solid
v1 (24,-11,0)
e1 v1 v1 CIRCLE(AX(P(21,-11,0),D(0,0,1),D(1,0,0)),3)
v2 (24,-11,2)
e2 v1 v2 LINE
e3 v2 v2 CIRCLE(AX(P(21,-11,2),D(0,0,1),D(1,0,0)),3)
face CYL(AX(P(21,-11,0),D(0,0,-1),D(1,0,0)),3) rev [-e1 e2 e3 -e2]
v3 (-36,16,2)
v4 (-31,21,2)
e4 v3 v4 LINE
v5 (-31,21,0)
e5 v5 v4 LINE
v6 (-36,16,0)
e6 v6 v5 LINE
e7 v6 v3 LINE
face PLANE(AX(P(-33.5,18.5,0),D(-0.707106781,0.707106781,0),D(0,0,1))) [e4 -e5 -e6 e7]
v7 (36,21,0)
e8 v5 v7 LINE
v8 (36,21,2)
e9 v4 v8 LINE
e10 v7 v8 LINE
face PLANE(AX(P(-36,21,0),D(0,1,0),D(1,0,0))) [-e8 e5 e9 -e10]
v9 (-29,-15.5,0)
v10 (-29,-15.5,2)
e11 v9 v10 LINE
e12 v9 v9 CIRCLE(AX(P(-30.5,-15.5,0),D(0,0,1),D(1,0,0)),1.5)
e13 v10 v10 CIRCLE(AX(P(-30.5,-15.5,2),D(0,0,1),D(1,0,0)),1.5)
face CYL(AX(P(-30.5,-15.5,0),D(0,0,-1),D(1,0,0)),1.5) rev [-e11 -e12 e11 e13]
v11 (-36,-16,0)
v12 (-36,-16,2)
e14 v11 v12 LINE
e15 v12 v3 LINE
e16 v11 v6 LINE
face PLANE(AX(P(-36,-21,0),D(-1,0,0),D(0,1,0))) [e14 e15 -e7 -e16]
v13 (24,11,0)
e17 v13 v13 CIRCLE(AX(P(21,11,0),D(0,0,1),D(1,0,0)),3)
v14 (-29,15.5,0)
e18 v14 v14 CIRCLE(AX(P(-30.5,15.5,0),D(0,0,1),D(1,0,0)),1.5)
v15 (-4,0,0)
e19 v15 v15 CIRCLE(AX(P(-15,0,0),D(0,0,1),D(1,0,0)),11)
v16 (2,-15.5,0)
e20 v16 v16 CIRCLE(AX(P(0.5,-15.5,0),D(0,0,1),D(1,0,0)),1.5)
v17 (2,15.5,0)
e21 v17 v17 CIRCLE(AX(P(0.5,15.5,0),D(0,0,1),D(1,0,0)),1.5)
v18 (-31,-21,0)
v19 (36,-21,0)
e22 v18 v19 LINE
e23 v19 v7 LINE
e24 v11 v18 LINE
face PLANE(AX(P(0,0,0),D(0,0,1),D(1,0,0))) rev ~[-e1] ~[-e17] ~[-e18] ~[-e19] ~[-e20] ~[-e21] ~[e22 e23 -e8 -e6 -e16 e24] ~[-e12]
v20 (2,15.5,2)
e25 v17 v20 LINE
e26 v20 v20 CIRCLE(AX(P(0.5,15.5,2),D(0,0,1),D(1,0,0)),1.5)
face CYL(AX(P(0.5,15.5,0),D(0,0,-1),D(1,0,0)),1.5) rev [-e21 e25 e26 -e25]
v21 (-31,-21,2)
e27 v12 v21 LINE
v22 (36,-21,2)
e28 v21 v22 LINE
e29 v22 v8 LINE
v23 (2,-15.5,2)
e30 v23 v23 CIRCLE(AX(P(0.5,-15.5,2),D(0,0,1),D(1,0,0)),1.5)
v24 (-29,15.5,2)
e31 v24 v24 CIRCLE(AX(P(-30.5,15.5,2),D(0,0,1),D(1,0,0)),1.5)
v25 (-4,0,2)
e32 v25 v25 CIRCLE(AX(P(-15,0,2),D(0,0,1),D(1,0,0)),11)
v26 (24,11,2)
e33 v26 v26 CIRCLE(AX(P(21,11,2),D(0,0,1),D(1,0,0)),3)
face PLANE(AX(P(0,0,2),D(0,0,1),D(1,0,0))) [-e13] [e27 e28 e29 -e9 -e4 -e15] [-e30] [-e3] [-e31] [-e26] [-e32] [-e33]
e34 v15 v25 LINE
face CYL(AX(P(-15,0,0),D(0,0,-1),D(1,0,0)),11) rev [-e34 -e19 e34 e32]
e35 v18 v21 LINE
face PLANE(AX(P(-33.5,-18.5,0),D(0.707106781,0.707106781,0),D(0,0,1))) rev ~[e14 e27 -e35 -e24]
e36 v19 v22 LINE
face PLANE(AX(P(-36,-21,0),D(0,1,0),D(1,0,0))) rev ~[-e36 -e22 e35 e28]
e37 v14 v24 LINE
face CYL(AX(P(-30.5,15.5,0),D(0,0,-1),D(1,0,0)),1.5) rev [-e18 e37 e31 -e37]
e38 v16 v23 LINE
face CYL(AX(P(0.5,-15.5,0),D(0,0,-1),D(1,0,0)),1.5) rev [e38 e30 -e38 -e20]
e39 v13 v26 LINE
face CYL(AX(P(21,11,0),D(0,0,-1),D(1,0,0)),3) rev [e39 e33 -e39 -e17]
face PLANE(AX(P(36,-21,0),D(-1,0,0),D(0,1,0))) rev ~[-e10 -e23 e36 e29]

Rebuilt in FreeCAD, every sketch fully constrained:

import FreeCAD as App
import Part
import Sketcher
from FreeCAD import Vector


def edges_at(feature, points):
    """Names of the edges that pass closest to the given points."""
    edges = feature.Shape.Edges
    near = lambda p: min(range(len(edges)), key=lambda i: edges[i].distToShape(Part.Vertex(*p))[0])
    return sorted({f"Edge{near(p) + 1}" for p in points})


def add_polygon(sketch, points):
    """Adds a closed chain of lines whose ends are joined by coincident constraints."""
    first, n = sketch.GeometryCount, len(points)
    for a, b in zip(points, points[1:] + points[:1]):
        sketch.addGeometry(Part.LineSegment(App.Vector(*a, 0), App.Vector(*b, 0)), False)
    for i in range(n):
        sketch.addConstraint(Sketcher.Constraint("Coincident", first + i, 2, first + (i + 1) % n, 1))

doc = App.newDocument("Part")
body = doc.addObject("PartDesign::Body", "Body")

# Sketch on XY plane
sketch1 = body.newObject("Sketcher::SketchObject", "Sketch")
sketch1.AttachmentSupport = (doc.getObject("XY_Plane"), [""])
sketch1.MapMode = "FlatFace"
add_polygon(sketch1, [(-36, 21), (-36, -21), (36, -21), (36, 21)])  # lines 0-3
sketch1.addGeometry(Part.Circle(Vector(-30.5, -15.5, 0), Vector(0, 0, 1), 1.5), False)  # 4
sketch1.addGeometry(Part.Circle(Vector(0.5, -15.5, 0), Vector(0, 0, 1), 1.5), False)  # 5
sketch1.addGeometry(Part.Circle(Vector(21, -11, 0), Vector(0, 0, 1), 3), False)  # 6
sketch1.addGeometry(Part.Circle(Vector(-15, 0, 0), Vector(0, 0, 1), 11), False)  # 7
sketch1.addGeometry(Part.Circle(Vector(-30.5, 15.5, 0), Vector(0, 0, 1), 1.5), False)  # 8
sketch1.addGeometry(Part.Circle(Vector(0.5, 15.5, 0), Vector(0, 0, 1), 1.5), False)  # 9
sketch1.addGeometry(Part.Circle(Vector(21, 11, 0), Vector(0, 0, 1), 3), False)  # 10
sketch1.addConstraint(Sketcher.Constraint("Vertical", 0))
sketch1.addConstraint(Sketcher.Constraint("Horizontal", 1))
sketch1.addConstraint(Sketcher.Constraint("Vertical", 2))
sketch1.addConstraint(Sketcher.Constraint("Horizontal", 3))
sketch1.addConstraint(Sketcher.Constraint("Equal", 4, 5))
sketch1.addConstraint(Sketcher.Constraint("Equal", 5, 8))
sketch1.addConstraint(Sketcher.Constraint("Equal", 8, 9))
sketch1.addConstraint(Sketcher.Constraint("Equal", 6, 10))
sketch1.addConstraint(Sketcher.Constraint("Symmetric", 0, 2, 2, 2, -1, 1))
sketch1.addConstraint(Sketcher.Constraint("Symmetric", 4, 3, 8, 3, -1))
sketch1.addConstraint(Sketcher.Constraint("Symmetric", 5, 3, 9, 3, -1))
sketch1.addConstraint(Sketcher.Constraint("Symmetric", 6, 3, 10, 3, -1))
sketch1.addConstraint(Sketcher.Constraint("PointOnObject", 7, 3, -1))
sketch1.addConstraint(Sketcher.Constraint("Horizontal", 4, 3, 5, 3))
sketch1.addConstraint(Sketcher.Constraint("Diameter", 4, 3.0))
sketch1.addConstraint(Sketcher.Constraint("Diameter", 6, 6.0))
sketch1.addConstraint(Sketcher.Constraint("Diameter", 7, 22.0))
sketch1.addConstraint(Sketcher.Constraint("DistanceX", 1, 1, 1, 2, 72.0))
sketch1.addConstraint(Sketcher.Constraint("DistanceY", 0, 2, 0, 1, 42.0))
sketch1.addConstraint(Sketcher.Constraint("DistanceX", -1, 1, 6, 3, 21.0))
sketch1.addConstraint(Sketcher.Constraint("DistanceY", 6, 3, -1, 1, 11.0))
sketch1.addConstraint(Sketcher.Constraint("DistanceX", 7, 3, -1, 1, 15.0))
sketch1.addConstraint(Sketcher.Constraint("DistanceX", 4, 3, 5, 3, 31.0))
sketch1.addConstraint(Sketcher.Constraint("DistanceY", 4, 3, 8, 3, 31.0))
sketch1.addConstraint(Sketcher.Constraint("DistanceX", 4, 3, -1, 1, 30.5))
pad1 = body.newObject("PartDesign::Pad", "Pad")
pad1.Profile = sketch1
pad1.Length = 2
doc.recompute()

chamfer = body.newObject("PartDesign::Chamfer", "Chamfer")
chamfer.Base = (pad1, edges_at(pad1, [(-36, -21, 1), (-36, 21, 1)]))
chamfer.Size = 5

doc.recompute()
